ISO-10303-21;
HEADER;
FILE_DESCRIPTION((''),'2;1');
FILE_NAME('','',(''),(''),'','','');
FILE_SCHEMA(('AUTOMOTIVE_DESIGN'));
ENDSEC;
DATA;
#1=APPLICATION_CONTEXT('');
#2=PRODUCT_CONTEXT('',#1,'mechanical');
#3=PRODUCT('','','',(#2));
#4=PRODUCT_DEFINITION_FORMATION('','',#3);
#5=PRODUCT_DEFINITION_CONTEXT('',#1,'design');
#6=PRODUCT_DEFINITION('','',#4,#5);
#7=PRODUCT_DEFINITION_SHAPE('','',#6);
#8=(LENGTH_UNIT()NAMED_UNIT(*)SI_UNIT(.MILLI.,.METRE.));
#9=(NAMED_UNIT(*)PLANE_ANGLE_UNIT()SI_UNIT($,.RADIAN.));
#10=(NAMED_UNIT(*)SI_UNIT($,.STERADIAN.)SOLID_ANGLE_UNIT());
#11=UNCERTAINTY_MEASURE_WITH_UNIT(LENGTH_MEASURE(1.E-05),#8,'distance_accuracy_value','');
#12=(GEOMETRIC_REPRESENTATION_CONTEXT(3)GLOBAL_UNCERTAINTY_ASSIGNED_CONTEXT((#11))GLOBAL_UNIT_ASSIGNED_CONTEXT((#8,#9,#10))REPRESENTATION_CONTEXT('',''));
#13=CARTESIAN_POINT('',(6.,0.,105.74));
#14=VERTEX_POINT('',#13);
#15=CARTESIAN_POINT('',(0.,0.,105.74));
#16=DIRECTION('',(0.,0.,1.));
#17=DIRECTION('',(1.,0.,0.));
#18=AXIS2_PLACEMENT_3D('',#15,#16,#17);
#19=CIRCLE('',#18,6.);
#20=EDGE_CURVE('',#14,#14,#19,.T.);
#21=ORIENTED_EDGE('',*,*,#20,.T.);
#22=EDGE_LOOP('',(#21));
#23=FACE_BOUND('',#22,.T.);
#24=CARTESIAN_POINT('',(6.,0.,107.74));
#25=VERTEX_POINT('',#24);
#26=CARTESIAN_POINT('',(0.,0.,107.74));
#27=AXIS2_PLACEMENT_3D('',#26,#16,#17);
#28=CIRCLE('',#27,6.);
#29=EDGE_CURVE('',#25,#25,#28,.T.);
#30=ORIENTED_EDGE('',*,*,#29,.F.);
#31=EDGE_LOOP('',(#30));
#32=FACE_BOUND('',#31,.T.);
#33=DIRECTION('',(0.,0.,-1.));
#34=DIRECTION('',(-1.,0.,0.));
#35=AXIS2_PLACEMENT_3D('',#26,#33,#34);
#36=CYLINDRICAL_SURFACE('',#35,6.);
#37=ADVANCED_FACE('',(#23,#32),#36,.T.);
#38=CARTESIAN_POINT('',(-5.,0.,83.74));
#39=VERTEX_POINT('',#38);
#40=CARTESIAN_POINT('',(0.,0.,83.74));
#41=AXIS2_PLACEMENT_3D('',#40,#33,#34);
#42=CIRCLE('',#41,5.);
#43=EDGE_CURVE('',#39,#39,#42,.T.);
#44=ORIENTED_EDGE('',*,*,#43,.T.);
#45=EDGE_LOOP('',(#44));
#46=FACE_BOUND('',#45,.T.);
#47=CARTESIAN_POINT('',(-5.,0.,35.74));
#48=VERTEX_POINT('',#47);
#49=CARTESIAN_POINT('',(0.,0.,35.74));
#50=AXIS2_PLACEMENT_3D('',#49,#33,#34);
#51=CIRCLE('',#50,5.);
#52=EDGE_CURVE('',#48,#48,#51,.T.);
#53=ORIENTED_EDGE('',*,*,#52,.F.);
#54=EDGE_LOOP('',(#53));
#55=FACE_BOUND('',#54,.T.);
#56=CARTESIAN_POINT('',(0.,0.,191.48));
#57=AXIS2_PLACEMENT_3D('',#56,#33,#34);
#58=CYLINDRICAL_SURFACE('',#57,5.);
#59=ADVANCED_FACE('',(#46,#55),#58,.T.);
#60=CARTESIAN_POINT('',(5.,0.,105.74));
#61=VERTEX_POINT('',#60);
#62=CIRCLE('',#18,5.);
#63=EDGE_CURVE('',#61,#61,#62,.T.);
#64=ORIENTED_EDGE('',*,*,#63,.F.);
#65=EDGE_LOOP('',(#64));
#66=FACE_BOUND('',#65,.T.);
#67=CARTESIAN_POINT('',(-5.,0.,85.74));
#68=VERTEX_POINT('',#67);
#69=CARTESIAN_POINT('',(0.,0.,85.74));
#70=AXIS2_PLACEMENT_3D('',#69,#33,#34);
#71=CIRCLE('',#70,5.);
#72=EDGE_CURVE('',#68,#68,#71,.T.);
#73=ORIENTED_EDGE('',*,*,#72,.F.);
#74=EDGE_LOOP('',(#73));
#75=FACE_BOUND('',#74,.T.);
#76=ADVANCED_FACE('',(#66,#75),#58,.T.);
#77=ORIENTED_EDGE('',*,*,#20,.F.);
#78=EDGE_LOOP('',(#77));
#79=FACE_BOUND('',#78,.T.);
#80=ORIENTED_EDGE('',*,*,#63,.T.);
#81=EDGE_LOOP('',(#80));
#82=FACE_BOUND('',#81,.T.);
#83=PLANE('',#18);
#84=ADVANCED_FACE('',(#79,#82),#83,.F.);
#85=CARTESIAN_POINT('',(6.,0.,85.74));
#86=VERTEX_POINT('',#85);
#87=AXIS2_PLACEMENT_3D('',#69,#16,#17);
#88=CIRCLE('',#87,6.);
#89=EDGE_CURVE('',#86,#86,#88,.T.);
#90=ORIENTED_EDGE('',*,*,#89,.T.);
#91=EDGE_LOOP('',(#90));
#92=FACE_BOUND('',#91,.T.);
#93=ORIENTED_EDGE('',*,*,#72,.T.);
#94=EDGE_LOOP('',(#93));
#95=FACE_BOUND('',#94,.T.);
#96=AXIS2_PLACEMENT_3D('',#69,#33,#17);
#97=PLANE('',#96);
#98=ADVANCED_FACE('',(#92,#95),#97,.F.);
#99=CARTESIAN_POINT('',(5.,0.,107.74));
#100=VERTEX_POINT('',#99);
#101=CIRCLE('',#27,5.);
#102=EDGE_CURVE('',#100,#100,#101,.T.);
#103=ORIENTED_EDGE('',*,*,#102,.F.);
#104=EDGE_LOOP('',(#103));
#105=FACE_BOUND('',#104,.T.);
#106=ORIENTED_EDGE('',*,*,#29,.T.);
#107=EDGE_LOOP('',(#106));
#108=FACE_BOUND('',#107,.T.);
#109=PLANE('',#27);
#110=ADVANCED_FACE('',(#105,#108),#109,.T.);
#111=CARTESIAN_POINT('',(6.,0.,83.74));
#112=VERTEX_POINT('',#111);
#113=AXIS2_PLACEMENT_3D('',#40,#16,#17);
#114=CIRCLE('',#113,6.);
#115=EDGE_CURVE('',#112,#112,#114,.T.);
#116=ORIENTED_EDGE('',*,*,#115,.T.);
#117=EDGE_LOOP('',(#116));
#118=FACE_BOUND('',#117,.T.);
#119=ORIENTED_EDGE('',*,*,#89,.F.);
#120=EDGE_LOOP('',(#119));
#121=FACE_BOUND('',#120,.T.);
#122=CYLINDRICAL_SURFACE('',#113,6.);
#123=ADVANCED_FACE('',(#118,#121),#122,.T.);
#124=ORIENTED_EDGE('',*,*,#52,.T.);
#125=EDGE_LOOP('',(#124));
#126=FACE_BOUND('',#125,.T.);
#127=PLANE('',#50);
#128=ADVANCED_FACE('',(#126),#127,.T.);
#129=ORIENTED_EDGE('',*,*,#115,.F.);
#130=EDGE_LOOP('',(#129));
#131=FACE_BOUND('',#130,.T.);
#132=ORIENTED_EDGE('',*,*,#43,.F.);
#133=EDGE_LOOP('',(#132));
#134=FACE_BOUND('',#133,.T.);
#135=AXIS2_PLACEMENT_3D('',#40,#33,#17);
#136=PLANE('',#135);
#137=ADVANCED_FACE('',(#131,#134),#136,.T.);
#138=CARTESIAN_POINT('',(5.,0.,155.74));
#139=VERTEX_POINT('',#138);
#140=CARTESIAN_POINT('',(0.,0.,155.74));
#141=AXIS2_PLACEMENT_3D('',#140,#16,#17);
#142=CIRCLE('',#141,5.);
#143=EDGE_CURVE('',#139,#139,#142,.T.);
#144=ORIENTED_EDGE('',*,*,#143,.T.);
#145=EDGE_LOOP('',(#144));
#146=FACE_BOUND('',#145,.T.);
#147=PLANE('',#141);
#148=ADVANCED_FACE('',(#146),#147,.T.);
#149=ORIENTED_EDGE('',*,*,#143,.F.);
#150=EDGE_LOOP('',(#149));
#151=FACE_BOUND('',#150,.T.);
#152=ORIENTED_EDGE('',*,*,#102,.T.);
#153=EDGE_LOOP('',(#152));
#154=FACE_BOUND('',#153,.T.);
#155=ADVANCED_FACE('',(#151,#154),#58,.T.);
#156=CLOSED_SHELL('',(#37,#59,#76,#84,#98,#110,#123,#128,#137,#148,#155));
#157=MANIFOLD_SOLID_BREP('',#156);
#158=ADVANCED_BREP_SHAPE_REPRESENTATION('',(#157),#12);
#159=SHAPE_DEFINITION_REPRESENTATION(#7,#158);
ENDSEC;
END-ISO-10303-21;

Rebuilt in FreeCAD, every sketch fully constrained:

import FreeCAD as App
import Part
import Sketcher
from FreeCAD import Vector
Q = App.Units.Quantity

doc = App.newDocument("Part")
params = doc.addObject("Spreadsheet::Sheet", "Params")
for row, (alias, value) in enumerate([
    ("sketch1_diameter", "10 mm"),
    ("pad1_length", "191.48 mm"),
    ("sketch2_diameter", "12 mm"),
    ("pad2_length", "2 mm"),
    ("sketch3_diameter", "10 mm"),
    ("pocket1_length", "35.74 mm"),
    ("sketch4_diameter", "10 mm"),
    ("pocket2_length", "35.74 mm"),
], start=1):
    params.set(f"A{row}", alias)
    params.set(f"B{row}", "=" + value)
    params.setAlias(f"B{row}", alias)

body = doc.addObject("PartDesign::Body", "Body")

# Sketch on XY plane
sketch1 = doc.addObject("Sketcher::SketchObject", "Sketch")
body.addObject(sketch1)
sketch1.AttachmentSupport = (doc.XY_Plane, [""])
sketch1.MapMode = "FlatFace"
sketch1.addGeometry(Part.Circle(Vector(0, 0, 0), Vector(0, 0, 1), 5), False)
sketch1.addConstraint([
    Sketcher.Constraint("Coincident", 0, 3, -1, 1),
    Sketcher.Constraint("Diameter", 0, Q("10 mm")),
])
sketch1.setExpression("Constraints[1]", "Params.sketch1_diameter")
pad1 = doc.addObject("PartDesign::Pad", "Pad")
body.addObject(pad1)
pad1.Profile = sketch1
pad1.setExpression("Length", "Params.pad1_length")

# Sketch on XY plane
sketch2 = doc.addObject("Sketcher::SketchObject", "Sketch001")
body.addObject(sketch2)
sketch2.AttachmentSupport = (doc.XY_Plane, [""])
sketch2.MapMode = "FlatFace"
sketch2.AttachmentOffset = App.Placement(Vector(0, 0, 105.74), App.Rotation())
sketch2.addGeometry(Part.Circle(Vector(0, 0, 0), Vector(0, 0, 1), 6), False)
sketch2.addConstraint([
    Sketcher.Constraint("Coincident", 0, 3, -1, 1),
    Sketcher.Constraint("Diameter", 0, Q("12 mm")),
])
sketch2.setExpression("Constraints[1]", "Params.sketch2_diameter")
pad2 = doc.addObject("PartDesign::Pad", "Pad001")
body.addObject(pad2)
pad2.Profile = sketch2
pad2.setExpression("Length", "Params.pad2_length")
doc.recompute()

datumplane = doc.addObject("PartDesign::Plane", "DatumPlane")
body.addObject(datumplane)
datumplane.AttachmentSupport = (doc.XY_Plane, [""])
datumplane.MapMode = "FlatFace"
datumplane.AttachmentOffset = App.Placement(Vector(0, 0, 95.74), App.Rotation())
mirrored = doc.addObject("PartDesign::Mirrored", "Mirrored")
body.addObject(mirrored)
mirrored.Originals = [pad2]
mirrored.MirrorPlane = (datumplane, [""])
body.Tip = mirrored

# Sketch on XY plane
sketch3 = doc.addObject("Sketcher::SketchObject", "Sketch002")
body.addObject(sketch3)
sketch3.AttachmentSupport = (doc.XY_Plane, [""])
sketch3.MapMode = "FlatFace"
sketch3.AttachmentOffset = App.Placement(Vector(0, 0, 191.48), App.Rotation())
sketch3.addGeometry(Part.Circle(Vector(0, 0, 0), Vector(0, 0, 1), 5), False)
sketch3.addConstraint([
    Sketcher.Constraint("Coincident", 0, 3, -1, 1),
    Sketcher.Constraint("Diameter", 0, Q("10 mm")),
])
sketch3.setExpression("Constraints[1]", "Params.sketch3_diameter")
pocket1 = doc.addObject("PartDesign::Pocket", "Pocket")
body.addObject(pocket1)
pocket1.Profile = sketch3
pocket1.setExpression("Length", "Params.pocket1_length")

# Sketch on XY plane
sketch4 = doc.addObject("Sketcher::SketchObject", "Sketch003")
body.addObject(sketch4)
sketch4.AttachmentSupport = (doc.XY_Plane, [""])
sketch4.MapMode = "FlatFace"
sketch4.addGeometry(Part.Circle(Vector(0, 0, 0), Vector(0, 0, 1), 5), False)
sketch4.addConstraint([
    Sketcher.Constraint("Coincident", 0, 3, -1, 1),
    Sketcher.Constraint("Diameter", 0, Q("10 mm")),
])
sketch4.setExpression("Constraints[1]", "Params.sketch4_diameter")
pocket2 = doc.addObject("PartDesign::Pocket", "Pocket001")
body.addObject(pocket2)
pocket2.Profile = sketch4
pocket2.setExpression("Length", "Params.pocket2_length")
pocket2.Reversed = True

doc.recompute()
